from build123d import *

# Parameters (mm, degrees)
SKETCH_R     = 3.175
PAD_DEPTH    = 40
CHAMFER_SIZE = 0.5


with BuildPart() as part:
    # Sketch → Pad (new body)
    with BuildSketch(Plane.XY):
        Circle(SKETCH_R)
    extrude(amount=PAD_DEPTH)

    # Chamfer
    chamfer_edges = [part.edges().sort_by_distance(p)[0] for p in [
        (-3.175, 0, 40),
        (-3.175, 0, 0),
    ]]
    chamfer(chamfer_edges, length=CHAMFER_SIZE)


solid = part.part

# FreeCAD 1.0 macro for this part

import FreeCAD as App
import Part
import Sketcher
Q = App.Units.Quantity


def edges_at(feature, points):
    """Names of the edges that pass closest to the given points."""
    edges = feature.Shape.Edges
    near = lambda p: min(range(len(edges)), key=lambda i: edges[i].distToShape(Part.Vertex(*p))[0])
    return sorted({f"Edge{near(p) + 1}" for p in points})

doc = App.newDocument("Part")
body = doc.addObject("PartDesign::Body", "Body")

sketch1 = body.newObject("Sketcher::SketchObject", "Sketch")
sketch1.AttachmentSupport = (doc.getObject("XY_Plane"), [""])
sketch1.MapMode = "FlatFace"
sketch1.addGeometry(Part.Circle(App.Vector(0, 0, 0), App.Vector(0, 0, 1), 3.2), False)
sketch1.addConstraint([
    Sketcher.Constraint("Coincident", 0, 3, -1, 1),
    Sketcher.Constraint("Diameter", 0, Q("6.35 mm")),
])
pad1 = body.newObject("PartDesign::Pad", "Pad")
pad1.Profile = sketch1
pad1.Length = 40
doc.recompute()

chamfer = body.newObject("PartDesign::Chamfer", "Chamfer")
chamfer.Base = (pad1, edges_at(pad1, [(-3.175, 0, 40), (-3.175, 0, 0)]))
chamfer.Size = 0.5

doc.recompute()
